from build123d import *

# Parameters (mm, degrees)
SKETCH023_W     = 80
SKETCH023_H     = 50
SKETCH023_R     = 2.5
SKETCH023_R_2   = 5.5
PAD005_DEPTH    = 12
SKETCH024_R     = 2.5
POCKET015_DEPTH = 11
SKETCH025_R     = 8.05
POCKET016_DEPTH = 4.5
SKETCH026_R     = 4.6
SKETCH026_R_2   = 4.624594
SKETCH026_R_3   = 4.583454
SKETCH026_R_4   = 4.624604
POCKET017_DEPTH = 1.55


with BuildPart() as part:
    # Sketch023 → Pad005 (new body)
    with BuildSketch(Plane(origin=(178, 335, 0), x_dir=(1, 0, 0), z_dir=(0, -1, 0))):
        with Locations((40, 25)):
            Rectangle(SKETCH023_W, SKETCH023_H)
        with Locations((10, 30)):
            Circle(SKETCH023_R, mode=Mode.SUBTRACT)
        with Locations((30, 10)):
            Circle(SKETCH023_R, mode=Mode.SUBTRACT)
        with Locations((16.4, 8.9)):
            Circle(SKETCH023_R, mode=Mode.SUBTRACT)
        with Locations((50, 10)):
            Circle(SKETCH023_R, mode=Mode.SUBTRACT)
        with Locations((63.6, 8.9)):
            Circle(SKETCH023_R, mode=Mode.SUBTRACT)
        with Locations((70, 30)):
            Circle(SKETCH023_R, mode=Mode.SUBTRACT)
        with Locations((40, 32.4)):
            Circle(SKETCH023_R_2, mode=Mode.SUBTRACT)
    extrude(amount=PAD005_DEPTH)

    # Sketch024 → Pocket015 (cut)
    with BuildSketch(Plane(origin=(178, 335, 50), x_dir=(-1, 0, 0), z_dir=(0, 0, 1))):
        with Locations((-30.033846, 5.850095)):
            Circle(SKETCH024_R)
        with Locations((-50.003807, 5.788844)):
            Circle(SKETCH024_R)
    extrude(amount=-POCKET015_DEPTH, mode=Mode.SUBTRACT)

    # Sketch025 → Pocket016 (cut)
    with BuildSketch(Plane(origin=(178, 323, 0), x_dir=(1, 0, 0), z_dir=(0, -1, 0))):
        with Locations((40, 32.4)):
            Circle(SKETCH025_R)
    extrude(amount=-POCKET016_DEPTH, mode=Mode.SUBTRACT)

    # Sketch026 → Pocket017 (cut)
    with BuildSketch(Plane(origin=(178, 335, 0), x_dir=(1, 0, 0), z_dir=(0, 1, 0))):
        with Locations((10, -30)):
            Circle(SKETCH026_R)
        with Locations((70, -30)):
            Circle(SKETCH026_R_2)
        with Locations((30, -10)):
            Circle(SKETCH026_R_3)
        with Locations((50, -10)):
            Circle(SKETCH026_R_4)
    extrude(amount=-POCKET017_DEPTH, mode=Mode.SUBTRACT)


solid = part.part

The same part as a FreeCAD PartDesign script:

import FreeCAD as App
import Part
import Sketcher

V = App.Vector
Q = App.Units.Quantity


def add_polygon(sketch, points):
    """Adds a closed chain of lines whose ends are joined by coincident constraints."""
    first, n = sketch.GeometryCount, len(points)
    for a, b in zip(points, points[1:] + points[:1]):
        sketch.addGeometry(Part.LineSegment(App.Vector(*a, 0), App.Vector(*b, 0)), False)
    for i in range(n):
        sketch.addConstraint(Sketcher.Constraint("Coincident", first + i, 2, first + (i + 1) % n, 1))

doc = App.newDocument("Part")
body = doc.addObject("PartDesign::Body", "Body")

# Sketch on XZ plane
sketch1 = body.newObject("Sketcher::SketchObject", "Sketch")
sketch1.AttachmentSupport = (doc.getObject("XZ_Plane"), [""])
sketch1.MapMode = "FlatFace"
sketch1.AttachmentOffset = App.Placement(V(0, 0, -335), App.Rotation())
add_polygon(sketch1, [(178, 50), (178, 0), (258, 0), (258, 50)])  # lines 0-3
sketch1.addGeometry(Part.Circle(V(194.4, 8.9, 0), V(0, 0, 1), 2.5), False)  # 4
sketch1.addGeometry(Part.Circle(V(208, 10, 0), V(0, 0, 1), 2.5), False)  # 5
sketch1.addGeometry(Part.Circle(V(228, 10, 0), V(0, 0, 1), 2.5), False)  # 6
sketch1.addGeometry(Part.Circle(V(241.6, 8.9, 0), V(0, 0, 1), 2.5), False)  # 7
sketch1.addGeometry(Part.Circle(V(188, 30, 0), V(0, 0, 1), 2.5), False)  # 8
sketch1.addGeometry(Part.Circle(V(248, 30, 0), V(0, 0, 1), 2.5), False)  # 9
sketch1.addGeometry(Part.Circle(V(218, 32.4, 0), V(0, 0, 1), 5.5), False)  # 10
sketch1.addConstraint(Sketcher.Constraint("Vertical", 0))
sketch1.addConstraint(Sketcher.Constraint("Horizontal", 1))
sketch1.addConstraint(Sketcher.Constraint("Vertical", 2))
sketch1.addConstraint(Sketcher.Constraint("Horizontal", 3))
sketch1.addConstraint(Sketcher.Constraint("Equal", 4, 5))
sketch1.addConstraint(Sketcher.Constraint("Equal", 5, 6))
sketch1.addConstraint(Sketcher.Constraint("Equal", 6, 7))
sketch1.addConstraint(Sketcher.Constraint("Equal", 7, 8))
sketch1.addConstraint(Sketcher.Constraint("Equal", 8, 9))
sketch1.addConstraint(Sketcher.Constraint("PointOnObject", 0, 2, -1))
sketch1.addConstraint(Sketcher.Constraint("Horizontal", 5, 3, 6, 3))
sketch1.addConstraint(Sketcher.Constraint("Horizontal", 4, 3, 7, 3))
sketch1.addConstraint(Sketcher.Constraint("Horizontal", 8, 3, 9, 3))
sketch1.addConstraint(Sketcher.Constraint("Diameter", 4, Q("5 mm")))
sketch1.addConstraint(Sketcher.Constraint("Diameter", 10, Q("11 mm")))
sketch1.addConstraint(Sketcher.Constraint("DistanceX", 1, 1, 1, 2, Q("80 mm")))
sketch1.addConstraint(Sketcher.Constraint("DistanceY", 0, 2, 0, 1, Q("50 mm")))
sketch1.addConstraint(Sketcher.Constraint("DistanceX", -1, 1, 5, 3, Q("208 mm")))
sketch1.addConstraint(Sketcher.Constraint("DistanceY", -1, 1, 5, 3, Q("10 mm")))
sketch1.addConstraint(Sketcher.Constraint("DistanceX", -1, 1, 6, 3, Q("228 mm")))
sketch1.addConstraint(Sketcher.Constraint("DistanceX", -1, 1, 8, 3, Q("188 mm")))
sketch1.addConstraint(Sketcher.Constraint("DistanceY", -1, 1, 8, 3, Q("30 mm")))
sketch1.addConstraint(Sketcher.Constraint("DistanceX", -1, 1, 9, 3, Q("248 mm")))
sketch1.addConstraint(Sketcher.Constraint("DistanceX", -1, 1, 10, 3, Q("218 mm")))
sketch1.addConstraint(Sketcher.Constraint("DistanceX", -1, 1, 0, 2, Q("178 mm")))
sketch1.addConstraint(Sketcher.Constraint("DistanceX", -1, 1, 4, 3, Q("194.4 mm")))
sketch1.addConstraint(Sketcher.Constraint("DistanceY", -1, 1, 4, 3, Q("8.9 mm")))
sketch1.addConstraint(Sketcher.Constraint("DistanceX", -1, 1, 7, 3, Q("241.6 mm")))
sketch1.addConstraint(Sketcher.Constraint("DistanceY", -1, 1, 10, 3, Q("32.4 mm")))
pad1 = body.newObject("PartDesign::Pad", "Pad")
pad1.Profile = sketch1
pad1.Length = 12

# Sketch on XY plane
sketch2 = body.newObject("Sketcher::SketchObject", "Sketch001")
sketch2.AttachmentSupport = (doc.getObject("XY_Plane"), [""])
sketch2.MapMode = "FlatFace"
sketch2.AttachmentOffset = App.Placement(V(0, 0, 50), App.Rotation())
sketch2.addGeometry(Part.Circle(V(208.033846, 329.149905, 0), V(0, 0, 1), 2.5), False)
sketch2.addGeometry(Part.Circle(V(228.003807, 329.211156, 0), V(0, 0, 1), 2.5), False)
sketch2.addConstraint(Sketcher.Constraint("Equal", 0, 1))
sketch2.addConstraint(Sketcher.Constraint("Diameter", 0, Q("5 mm")))
sketch2.addConstraint(Sketcher.Constraint("DistanceX", 0, 3, 1, 3, Q("19.969961 mm")))
sketch2.addConstraint(Sketcher.Constraint("DistanceY", 0, 3, 1, 3, Q("0.061251 mm")))
sketch2.addConstraint(Sketcher.Constraint("DistanceX", -1, 1, 0, 3, Q("208.033846 mm")))
sketch2.addConstraint(Sketcher.Constraint("DistanceY", -1, 1, 0, 3, Q("329.149905 mm")))
pocket1 = body.newObject("PartDesign::Pocket", "Pocket")
pocket1.Profile = sketch2
pocket1.Length = 11

# Sketch on XZ plane
sketch3 = body.newObject("Sketcher::SketchObject", "Sketch002")
sketch3.AttachmentSupport = (doc.getObject("XZ_Plane"), [""])
sketch3.MapMode = "FlatFace"
sketch3.AttachmentOffset = App.Placement(V(0, 0, -323), App.Rotation())
sketch3.addGeometry(Part.Circle(V(218, 32.4, 0), V(0, 0, 1), 8.05), False)
sketch3.addConstraint(Sketcher.Constraint("Diameter", 0, Q("16.1 mm")))
sketch3.addConstraint(Sketcher.Constraint("DistanceX", -1, 1, 0, 3, Q("218 mm")))
sketch3.addConstraint(Sketcher.Constraint("DistanceY", -1, 1, 0, 3, Q("32.4 mm")))
pocket2 = body.newObject("PartDesign::Pocket", "Pocket001")
pocket2.Profile = sketch3
pocket2.Length = 4.5

# Sketch on XZ plane
sketch4 = body.newObject("Sketcher::SketchObject", "Sketch003")
sketch4.AttachmentSupport = (doc.getObject("XZ_Plane"), [""])
sketch4.MapMode = "FlatFace"
sketch4.AttachmentOffset = App.Placement(V(0, 0, -335), App.Rotation())
sketch4.addGeometry(Part.Circle(V(188, 30, 0), V(0, 0, 1), 4.6), False)
sketch4.addGeometry(Part.Circle(V(248, 30, 0), V(0, 0, 1), 4.624594), False)
sketch4.addGeometry(Part.Circle(V(208, 10, 0), V(0, 0, 1), 4.583454), False)
sketch4.addGeometry(Part.Circle(V(228, 10, 0), V(0, 0, 1), 4.624604), False)
sketch4.addConstraint(Sketcher.Constraint("Horizontal", 0, 3, 1, 3))
sketch4.addConstraint(Sketcher.Constraint("Horizontal", 2, 3, 3, 3))
sketch4.addConstraint(Sketcher.Constraint("Diameter", 0, Q("9.2 mm")))
sketch4.addConstraint(Sketcher.Constraint("DistanceX", -1, 1, 0, 3, Q("188 mm")))
sketch4.addConstraint(Sketcher.Constraint("DistanceY", -1, 1, 0, 3, Q("30 mm")))
sketch4.addConstraint(Sketcher.Constraint("DistanceX", -1, 1, 1, 3, Q("248 mm")))
sketch4.addConstraint(Sketcher.Constraint("DistanceX", -1, 1, 2, 3, Q("208 mm")))
sketch4.addConstraint(Sketcher.Constraint("DistanceY", -1, 1, 2, 3, Q("10 mm")))
sketch4.addConstraint(Sketcher.Constraint("DistanceX", -1, 1, 3, 3, Q("228 mm")))
sketch4.addConstraint(Sketcher.Constraint("Diameter", 1, Q("9.249188 mm")))
sketch4.addConstraint(Sketcher.Constraint("Diameter", 2, Q("9.166908 mm")))
sketch4.addConstraint(Sketcher.Constraint("Diameter", 3, Q("9.249208 mm")))
pocket3 = body.newObject("PartDesign::Pocket", "Pocket002")
pocket3.Profile = sketch4
pocket3.Length = 1.55
pocket3.Reversed = True

doc.recompute()
